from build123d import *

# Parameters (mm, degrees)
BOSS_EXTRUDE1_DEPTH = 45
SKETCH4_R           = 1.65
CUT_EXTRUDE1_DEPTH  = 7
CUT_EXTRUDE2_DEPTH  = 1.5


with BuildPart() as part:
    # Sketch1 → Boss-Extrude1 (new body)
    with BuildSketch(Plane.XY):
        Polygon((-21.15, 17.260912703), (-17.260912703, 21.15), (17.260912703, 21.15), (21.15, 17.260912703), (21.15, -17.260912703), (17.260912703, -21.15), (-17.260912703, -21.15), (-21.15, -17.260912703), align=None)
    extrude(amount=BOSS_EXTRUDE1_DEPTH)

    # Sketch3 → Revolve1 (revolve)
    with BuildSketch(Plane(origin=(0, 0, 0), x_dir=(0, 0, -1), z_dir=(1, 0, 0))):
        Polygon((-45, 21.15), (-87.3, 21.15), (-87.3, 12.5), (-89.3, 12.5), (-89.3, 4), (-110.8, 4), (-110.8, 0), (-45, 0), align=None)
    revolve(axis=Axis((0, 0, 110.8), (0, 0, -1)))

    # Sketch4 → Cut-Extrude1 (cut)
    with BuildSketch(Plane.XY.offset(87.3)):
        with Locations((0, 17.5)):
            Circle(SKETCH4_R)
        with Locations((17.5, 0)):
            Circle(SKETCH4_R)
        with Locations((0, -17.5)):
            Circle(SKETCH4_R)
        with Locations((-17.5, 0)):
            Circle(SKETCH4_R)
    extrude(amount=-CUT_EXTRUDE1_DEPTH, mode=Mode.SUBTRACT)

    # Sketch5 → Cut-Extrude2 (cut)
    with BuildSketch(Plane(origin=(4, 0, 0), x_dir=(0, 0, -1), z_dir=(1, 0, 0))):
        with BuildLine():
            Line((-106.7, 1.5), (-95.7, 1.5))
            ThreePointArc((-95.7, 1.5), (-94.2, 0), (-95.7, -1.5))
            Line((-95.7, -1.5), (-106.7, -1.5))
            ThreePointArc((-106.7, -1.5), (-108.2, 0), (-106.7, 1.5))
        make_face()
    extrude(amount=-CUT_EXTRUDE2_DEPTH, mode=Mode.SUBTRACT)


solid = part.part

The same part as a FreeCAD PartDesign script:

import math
import FreeCAD as App
import Part
import Sketcher

doc = App.newDocument("Part")
body = doc.addObject("PartDesign::Body", "Body")

# Sketch on XY plane
sketch1 = body.newObject("Sketcher::SketchObject", "Sketch")
sketch1.AttachmentSupport = (doc.getObject("XY_Plane"), [""])
sketch1.MapMode = "FlatFace"
sketch1.addGeometry(Part.LineSegment(App.Vector(-17.260913, 21.15, 0), App.Vector(-21.15, 17.260913, 0)), False)
sketch1.addGeometry(Part.LineSegment(App.Vector(-21.15, 17.260913, 0), App.Vector(-21.15, -17.260913, 0)), False)
sketch1.addGeometry(Part.LineSegment(App.Vector(-21.15, -17.260913, 0), App.Vector(-17.260913, -21.15, 0)), False)
sketch1.addGeometry(Part.LineSegment(App.Vector(-17.260913, -21.15, 0), App.Vector(17.260913, -21.15, 0)), False)
sketch1.addGeometry(Part.LineSegment(App.Vector(17.260913, -21.15, 0), App.Vector(21.15, -17.260913, 0)), False)
sketch1.addGeometry(Part.LineSegment(App.Vector(21.15, -17.260913, 0), App.Vector(21.15, 17.260913, 0)), False)
sketch1.addGeometry(Part.LineSegment(App.Vector(21.15, 17.260913, 0), App.Vector(17.260913, 21.15, 0)), False)
sketch1.addGeometry(Part.LineSegment(App.Vector(17.260913, 21.15, 0), App.Vector(-17.260913, 21.15, 0)), False)
sketch1.addConstraint(Sketcher.Constraint("Coincident", 0, 2, 1, 1))
sketch1.addConstraint(Sketcher.Constraint("Coincident", 1, 2, 2, 1))
sketch1.addConstraint(Sketcher.Constraint("Coincident", 2, 2, 3, 1))
sketch1.addConstraint(Sketcher.Constraint("Coincident", 3, 2, 4, 1))
sketch1.addConstraint(Sketcher.Constraint("Coincident", 4, 2, 5, 1))
sketch1.addConstraint(Sketcher.Constraint("Coincident", 5, 2, 6, 1))
sketch1.addConstraint(Sketcher.Constraint("Coincident", 6, 2, 7, 1))
sketch1.addConstraint(Sketcher.Constraint("Coincident", 7, 2, 0, 1))
sketch1.addConstraint(Sketcher.Constraint("Vertical", 1))
sketch1.addConstraint(Sketcher.Constraint("Horizontal", 3))
sketch1.addConstraint(Sketcher.Constraint("Vertical", 5))
sketch1.addConstraint(Sketcher.Constraint("Horizontal", 7))
sketch1.addConstraint(Sketcher.Constraint("Symmetric", 0, 2, 4, 2, -1, 1))
sketch1.addConstraint(Sketcher.Constraint("Symmetric", 2, 2, 6, 2, -1, 1))
sketch1.addConstraint(Sketcher.Constraint("Perpendicular", 0, 2))
sketch1.addConstraint(Sketcher.Constraint("Perpendicular", 2, 4))
sketch1.addConstraint(Sketcher.Constraint("Perpendicular", 4, 6))
sketch1.addConstraint(Sketcher.Constraint("Horizontal", 1, 2, 4, 2))
sketch1.addConstraint(Sketcher.Constraint("Vertical", 3, 2, 6, 2))
sketch1.addConstraint(Sketcher.Constraint("Equal", 7, 1))
sketch1.addConstraint(Sketcher.Constraint("Distance", 0, 5.5))
sketch1.addConstraint(Sketcher.Constraint("DistanceX", 1, 2, 4, 2, 42.3))
pad1 = body.newObject("PartDesign::Pad", "Pad")
pad1.Profile = sketch1
pad1.Length = 45

# Sketch on YZ plane
sketch2 = body.newObject("Sketcher::SketchObject", "Sketch001")
sketch2.AttachmentSupport = (doc.getObject("YZ_Plane"), [""])
sketch2.MapMode = "FlatFace"
sketch2.addGeometry(Part.LineSegment(App.Vector(21.15, 45, 0), App.Vector(21.15, 87.3, 0)), False)
sketch2.addGeometry(Part.LineSegment(App.Vector(21.15, 87.3, 0), App.Vector(12.5, 87.3, 0)), False)
sketch2.addGeometry(Part.LineSegment(App.Vector(12.5, 87.3, 0), App.Vector(12.5, 89.3, 0)), False)
sketch2.addGeometry(Part.LineSegment(App.Vector(12.5, 89.3, 0), App.Vector(4, 89.3, 0)), False)
sketch2.addGeometry(Part.LineSegment(App.Vector(4, 89.3, 0), App.Vector(4, 110.8, 0)), False)
sketch2.addGeometry(Part.LineSegment(App.Vector(4, 110.8, 0), App.Vector(0, 110.8, 0)), False)
sketch2.addGeometry(Part.LineSegment(App.Vector(0, 110.8, 0), App.Vector(0, 45, 0)), False)
sketch2.addGeometry(Part.LineSegment(App.Vector(0, 45, 0), App.Vector(21.15, 45, 0)), False)
sketch2.addConstraint(Sketcher.Constraint("Coincident", 0, 2, 1, 1))
sketch2.addConstraint(Sketcher.Constraint("Coincident", 1, 2, 2, 1))
sketch2.addConstraint(Sketcher.Constraint("Coincident", 2, 2, 3, 1))
sketch2.addConstraint(Sketcher.Constraint("Coincident", 3, 2, 4, 1))
sketch2.addConstraint(Sketcher.Constraint("Coincident", 4, 2, 5, 1))
sketch2.addConstraint(Sketcher.Constraint("Coincident", 5, 2, 6, 1))
sketch2.addConstraint(Sketcher.Constraint("Coincident", 6, 2, 7, 1))
sketch2.addConstraint(Sketcher.Constraint("Coincident", 7, 2, 0, 1))
sketch2.addConstraint(Sketcher.Constraint("Vertical", 0))
sketch2.addConstraint(Sketcher.Constraint("Horizontal", 1))
sketch2.addConstraint(Sketcher.Constraint("Vertical", 2))
sketch2.addConstraint(Sketcher.Constraint("Horizontal", 3))
sketch2.addConstraint(Sketcher.Constraint("Vertical", 4))
sketch2.addConstraint(Sketcher.Constraint("Horizontal", 5))
sketch2.addConstraint(Sketcher.Constraint("Vertical", 6))
sketch2.addConstraint(Sketcher.Constraint("Horizontal", 7))
sketch2.addConstraint(Sketcher.Constraint("PointOnObject", 5, 2, -2))
sketch2.addConstraint(Sketcher.Constraint("DistanceX", 5, 2, 5, 1, 4.0))
sketch2.addConstraint(Sketcher.Constraint("DistanceY", 2, 1, 2, 2, 2.0))
sketch2.addConstraint(Sketcher.Constraint("DistanceX", 3, 2, 3, 1, 8.5))
sketch2.addConstraint(Sketcher.Constraint("DistanceY", 0, 1, 0, 2, 42.3))
sketch2.addConstraint(Sketcher.Constraint("DistanceY", 4, 1, 4, 2, 21.5))
sketch2.addConstraint(Sketcher.Constraint("DistanceY", -1, 1, 6, 2, 45.0))
sketch2.addConstraint(Sketcher.Constraint("DistanceX", 1, 2, 1, 1, 8.65))
revolution = body.newObject("PartDesign::Revolution", "Revolution")
revolution.Profile = sketch2
revolution.ReferenceAxis = (sketch2, ["V_Axis"])
revolution.Angle = 360

# Sketch on XY plane
sketch3 = body.newObject("Sketcher::SketchObject", "Sketch002")
sketch3.AttachmentSupport = (doc.getObject("XY_Plane"), [""])
sketch3.MapMode = "FlatFace"
sketch3.AttachmentOffset = App.Placement(App.Vector(0, 0, 87.3), App.Rotation())
sketch3.addGeometry(Part.Circle(App.Vector(0, 17.5, 0), App.Vector(0, 0, 1), 1.65), False)
sketch3.addGeometry(Part.Circle(App.Vector(17.5, 0, 0), App.Vector(0, 0, 1), 1.65), False)
sketch3.addGeometry(Part.Circle(App.Vector(0, -17.5, 0), App.Vector(0, 0, 1), 1.65), False)
sketch3.addGeometry(Part.Circle(App.Vector(-17.5, 0, 0), App.Vector(0, 0, 1), 1.65), False)
sketch3.addConstraint(Sketcher.Constraint("Equal", 0, 1))
sketch3.addConstraint(Sketcher.Constraint("Equal", 1, 2))
sketch3.addConstraint(Sketcher.Constraint("Equal", 2, 3))
sketch3.addConstraint(Sketcher.Constraint("Symmetric", 0, 3, 2, 3, -1, 1))
sketch3.addConstraint(Sketcher.Constraint("Symmetric", 1, 3, 3, 3, -1, 1))
sketch3.addConstraint(Sketcher.Constraint("PointOnObject", 0, 3, -2))
sketch3.addConstraint(Sketcher.Constraint("PointOnObject", 1, 3, -1))
sketch3.addConstraint(Sketcher.Constraint("Diameter", 0, 3.3))
sketch3.addConstraint(Sketcher.Constraint("DistanceY", 2, 3, 0, 3, 35.0))
sketch3.addConstraint(Sketcher.Constraint("DistanceX", 3, 3, 1, 3, 35.0))
pocket1 = body.newObject("PartDesign::Pocket", "Pocket")
pocket1.Profile = sketch3
pocket1.Length = 7

# Sketch on YZ plane
sketch4 = body.newObject("Sketcher::SketchObject", "Sketch003")
sketch4.AttachmentSupport = (doc.getObject("YZ_Plane"), [""])
sketch4.MapMode = "FlatFace"
sketch4.AttachmentOffset = App.Placement(App.Vector(0, 0, 4), App.Rotation())
sketch4.addGeometry(Part.LineSegment(App.Vector(1.5, 95.7, 0), App.Vector(1.5, 106.7, 0)), False)
sketch4.addGeometry(Part.ArcOfCircle(Part.Circle(App.Vector(0, 106.7, 0), App.Vector(0, 0, 1), 1.5), math.radians(0), math.radians(180)), False)
sketch4.addGeometry(Part.LineSegment(App.Vector(-1.5, 106.7, 0), App.Vector(-1.5, 95.7, 0)), False)
sketch4.addGeometry(Part.ArcOfCircle(Part.Circle(App.Vector(0, 95.7, 0), App.Vector(0, 0, 1), 1.5), math.radians(180), math.radians(360)), False)
sketch4.addConstraint(Sketcher.Constraint("Tangent", 0, 2, 1, 1))
sketch4.addConstraint(Sketcher.Constraint("Tangent", 1, 2, 2, 1))
sketch4.addConstraint(Sketcher.Constraint("Tangent", 2, 2, 3, 1))
sketch4.addConstraint(Sketcher.Constraint("Tangent", 3, 2, 0, 1))
sketch4.addConstraint(Sketcher.Constraint("Vertical", 0))
sketch4.addConstraint(Sketcher.Constraint("Vertical", 2))
sketch4.addConstraint(Sketcher.Constraint("PointOnObject", 1, 3, -2))
sketch4.addConstraint(Sketcher.Constraint("Radius", 1, 1.5))
sketch4.addConstraint(Sketcher.Constraint("DistanceY", 0, 1, 0, 2, 11.0))
sketch4.addConstraint(Sketcher.Constraint("DistanceY", -1, 1, 1, 3, 106.7))
pocket2 = body.newObject("PartDesign::Pocket", "Pocket001")
pocket2.Profile = sketch4
pocket2.Length = 1.5

doc.recompute()
